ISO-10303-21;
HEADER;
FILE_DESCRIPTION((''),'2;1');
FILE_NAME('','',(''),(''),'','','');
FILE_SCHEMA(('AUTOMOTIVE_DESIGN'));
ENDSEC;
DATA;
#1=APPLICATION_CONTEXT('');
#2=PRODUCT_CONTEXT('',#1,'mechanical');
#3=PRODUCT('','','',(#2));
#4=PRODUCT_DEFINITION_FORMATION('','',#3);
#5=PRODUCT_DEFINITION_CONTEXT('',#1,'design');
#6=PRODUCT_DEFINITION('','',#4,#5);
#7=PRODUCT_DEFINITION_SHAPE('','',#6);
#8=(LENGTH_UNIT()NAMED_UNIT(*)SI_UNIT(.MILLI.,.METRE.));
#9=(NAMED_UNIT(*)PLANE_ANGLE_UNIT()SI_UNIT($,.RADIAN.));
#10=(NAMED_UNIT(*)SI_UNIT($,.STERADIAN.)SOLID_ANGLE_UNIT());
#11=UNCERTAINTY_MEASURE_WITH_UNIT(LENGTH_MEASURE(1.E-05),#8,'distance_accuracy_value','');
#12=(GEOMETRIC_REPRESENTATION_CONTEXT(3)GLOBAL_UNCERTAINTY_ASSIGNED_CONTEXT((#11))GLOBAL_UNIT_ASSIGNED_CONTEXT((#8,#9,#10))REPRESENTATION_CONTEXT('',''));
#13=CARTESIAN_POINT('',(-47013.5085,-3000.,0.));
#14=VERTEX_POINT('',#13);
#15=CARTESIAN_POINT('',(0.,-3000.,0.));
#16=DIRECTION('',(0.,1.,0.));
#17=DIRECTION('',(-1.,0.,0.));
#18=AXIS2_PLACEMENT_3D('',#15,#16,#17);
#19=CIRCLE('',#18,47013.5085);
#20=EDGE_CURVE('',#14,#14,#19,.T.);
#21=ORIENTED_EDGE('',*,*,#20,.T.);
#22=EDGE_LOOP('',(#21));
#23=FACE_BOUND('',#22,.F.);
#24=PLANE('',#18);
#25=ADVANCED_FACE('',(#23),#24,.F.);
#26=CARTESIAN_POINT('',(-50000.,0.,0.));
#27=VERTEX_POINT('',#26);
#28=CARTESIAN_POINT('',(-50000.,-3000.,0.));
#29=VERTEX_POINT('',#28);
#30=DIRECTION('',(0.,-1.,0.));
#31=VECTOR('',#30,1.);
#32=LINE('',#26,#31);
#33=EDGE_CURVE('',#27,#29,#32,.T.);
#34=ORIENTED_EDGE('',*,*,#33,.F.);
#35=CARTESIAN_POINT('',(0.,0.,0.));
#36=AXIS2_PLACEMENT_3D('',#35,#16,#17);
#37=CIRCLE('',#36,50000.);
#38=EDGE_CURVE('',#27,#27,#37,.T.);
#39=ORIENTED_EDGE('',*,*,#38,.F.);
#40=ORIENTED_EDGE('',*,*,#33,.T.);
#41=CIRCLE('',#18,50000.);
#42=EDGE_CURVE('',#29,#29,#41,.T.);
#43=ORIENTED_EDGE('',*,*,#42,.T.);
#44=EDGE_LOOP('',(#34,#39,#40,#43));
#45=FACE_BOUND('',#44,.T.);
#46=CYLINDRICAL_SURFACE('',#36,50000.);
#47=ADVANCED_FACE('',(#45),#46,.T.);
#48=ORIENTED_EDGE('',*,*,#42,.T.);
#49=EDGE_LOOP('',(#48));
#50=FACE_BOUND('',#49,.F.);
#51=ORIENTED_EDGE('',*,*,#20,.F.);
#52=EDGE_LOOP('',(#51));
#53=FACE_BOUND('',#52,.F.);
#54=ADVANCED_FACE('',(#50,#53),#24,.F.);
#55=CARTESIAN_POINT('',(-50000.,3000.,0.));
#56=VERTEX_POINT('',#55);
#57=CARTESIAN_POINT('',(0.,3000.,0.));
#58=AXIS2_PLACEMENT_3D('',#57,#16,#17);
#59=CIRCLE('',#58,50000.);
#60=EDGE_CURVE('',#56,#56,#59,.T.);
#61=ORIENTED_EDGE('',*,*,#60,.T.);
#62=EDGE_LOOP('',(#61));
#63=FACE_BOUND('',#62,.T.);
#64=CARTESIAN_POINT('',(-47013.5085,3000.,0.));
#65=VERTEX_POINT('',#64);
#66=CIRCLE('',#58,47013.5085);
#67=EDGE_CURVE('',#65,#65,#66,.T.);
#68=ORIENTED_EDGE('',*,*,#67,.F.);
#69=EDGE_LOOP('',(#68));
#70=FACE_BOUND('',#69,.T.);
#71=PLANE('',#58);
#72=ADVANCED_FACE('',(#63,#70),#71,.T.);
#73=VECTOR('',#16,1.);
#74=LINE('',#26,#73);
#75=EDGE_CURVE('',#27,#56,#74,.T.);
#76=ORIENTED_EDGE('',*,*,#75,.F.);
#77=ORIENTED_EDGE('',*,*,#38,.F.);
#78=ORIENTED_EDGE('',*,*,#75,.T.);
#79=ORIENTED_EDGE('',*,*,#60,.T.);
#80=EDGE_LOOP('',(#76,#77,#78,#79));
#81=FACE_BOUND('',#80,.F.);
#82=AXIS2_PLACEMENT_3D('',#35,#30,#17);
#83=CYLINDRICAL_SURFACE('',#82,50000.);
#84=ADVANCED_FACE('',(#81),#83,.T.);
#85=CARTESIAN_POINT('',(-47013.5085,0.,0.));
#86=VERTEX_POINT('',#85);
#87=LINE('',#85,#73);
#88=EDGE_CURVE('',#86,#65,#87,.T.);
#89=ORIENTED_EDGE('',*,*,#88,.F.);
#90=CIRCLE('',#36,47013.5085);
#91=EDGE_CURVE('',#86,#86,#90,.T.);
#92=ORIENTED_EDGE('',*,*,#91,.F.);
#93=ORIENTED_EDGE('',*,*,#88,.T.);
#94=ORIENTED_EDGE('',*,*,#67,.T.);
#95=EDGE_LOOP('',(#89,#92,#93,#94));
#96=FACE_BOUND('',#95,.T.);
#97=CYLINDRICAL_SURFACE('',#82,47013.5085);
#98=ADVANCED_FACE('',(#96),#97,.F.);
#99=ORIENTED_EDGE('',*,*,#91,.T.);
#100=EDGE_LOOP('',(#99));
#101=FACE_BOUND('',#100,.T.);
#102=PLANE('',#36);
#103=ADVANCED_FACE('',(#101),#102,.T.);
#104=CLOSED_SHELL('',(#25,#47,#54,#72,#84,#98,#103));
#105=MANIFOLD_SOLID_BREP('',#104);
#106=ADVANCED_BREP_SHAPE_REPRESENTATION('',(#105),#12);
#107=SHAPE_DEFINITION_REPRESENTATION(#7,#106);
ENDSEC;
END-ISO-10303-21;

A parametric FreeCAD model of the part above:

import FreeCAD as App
import Part
import Sketcher

V = App.Vector
Q = App.Units.Quantity

doc = App.newDocument("Part")
body = doc.addObject("PartDesign::Body", "Body")

# Sketch on XZ plane
sketch1 = doc.addObject("Sketcher::SketchObject", "Sketch")
body.addObject(sketch1)
sketch1.AttachmentSupport = (doc.XZ_Plane, [""])
sketch1.MapMode = "FlatFace"
sketch1.addGeometry(Part.Circle(V(0, 0, 0), V(0, 0, 1), 50000), False)
sketch1.addGeometry(Part.Circle(V(0, 0, 0), V(0, 0, 1), 47014), False)
sketch1.addConstraint(Sketcher.Constraint("Coincident", 0, 3, -1, 1))
sketch1.addConstraint(Sketcher.Constraint("Coincident", 1, 3, -1, 1))
sketch1.addConstraint(Sketcher.Constraint("Diameter", 0, Q("100000 mm")))
sketch1.addConstraint(Sketcher.Constraint("Diameter", 1, Q("94027.017 mm")))
pad1 = doc.addObject("PartDesign::Pad", "Pad")
body.addObject(pad1)
pad1.Profile = sketch1
pad1.Length = 6000
pad1.Midplane = True

# Sketch on XZ plane
sketch2 = doc.addObject("Sketcher::SketchObject", "Sketch001")
body.addObject(sketch2)
sketch2.AttachmentSupport = (doc.XZ_Plane, [""])
sketch2.MapMode = "FlatFace"
sketch2.addGeometry(Part.Circle(V(0, 0, 0), V(0, 0, 1), 47014), False)
sketch2.addConstraint(Sketcher.Constraint("Coincident", 0, 3, -1, 1))
sketch2.addConstraint(Sketcher.Constraint("Diameter", 0, Q("94027.017 mm")))
pad2 = doc.addObject("PartDesign::Pad", "Pad001")
body.addObject(pad2)
pad2.Profile = sketch2
pad2.Length = 3000

doc.recompute()
